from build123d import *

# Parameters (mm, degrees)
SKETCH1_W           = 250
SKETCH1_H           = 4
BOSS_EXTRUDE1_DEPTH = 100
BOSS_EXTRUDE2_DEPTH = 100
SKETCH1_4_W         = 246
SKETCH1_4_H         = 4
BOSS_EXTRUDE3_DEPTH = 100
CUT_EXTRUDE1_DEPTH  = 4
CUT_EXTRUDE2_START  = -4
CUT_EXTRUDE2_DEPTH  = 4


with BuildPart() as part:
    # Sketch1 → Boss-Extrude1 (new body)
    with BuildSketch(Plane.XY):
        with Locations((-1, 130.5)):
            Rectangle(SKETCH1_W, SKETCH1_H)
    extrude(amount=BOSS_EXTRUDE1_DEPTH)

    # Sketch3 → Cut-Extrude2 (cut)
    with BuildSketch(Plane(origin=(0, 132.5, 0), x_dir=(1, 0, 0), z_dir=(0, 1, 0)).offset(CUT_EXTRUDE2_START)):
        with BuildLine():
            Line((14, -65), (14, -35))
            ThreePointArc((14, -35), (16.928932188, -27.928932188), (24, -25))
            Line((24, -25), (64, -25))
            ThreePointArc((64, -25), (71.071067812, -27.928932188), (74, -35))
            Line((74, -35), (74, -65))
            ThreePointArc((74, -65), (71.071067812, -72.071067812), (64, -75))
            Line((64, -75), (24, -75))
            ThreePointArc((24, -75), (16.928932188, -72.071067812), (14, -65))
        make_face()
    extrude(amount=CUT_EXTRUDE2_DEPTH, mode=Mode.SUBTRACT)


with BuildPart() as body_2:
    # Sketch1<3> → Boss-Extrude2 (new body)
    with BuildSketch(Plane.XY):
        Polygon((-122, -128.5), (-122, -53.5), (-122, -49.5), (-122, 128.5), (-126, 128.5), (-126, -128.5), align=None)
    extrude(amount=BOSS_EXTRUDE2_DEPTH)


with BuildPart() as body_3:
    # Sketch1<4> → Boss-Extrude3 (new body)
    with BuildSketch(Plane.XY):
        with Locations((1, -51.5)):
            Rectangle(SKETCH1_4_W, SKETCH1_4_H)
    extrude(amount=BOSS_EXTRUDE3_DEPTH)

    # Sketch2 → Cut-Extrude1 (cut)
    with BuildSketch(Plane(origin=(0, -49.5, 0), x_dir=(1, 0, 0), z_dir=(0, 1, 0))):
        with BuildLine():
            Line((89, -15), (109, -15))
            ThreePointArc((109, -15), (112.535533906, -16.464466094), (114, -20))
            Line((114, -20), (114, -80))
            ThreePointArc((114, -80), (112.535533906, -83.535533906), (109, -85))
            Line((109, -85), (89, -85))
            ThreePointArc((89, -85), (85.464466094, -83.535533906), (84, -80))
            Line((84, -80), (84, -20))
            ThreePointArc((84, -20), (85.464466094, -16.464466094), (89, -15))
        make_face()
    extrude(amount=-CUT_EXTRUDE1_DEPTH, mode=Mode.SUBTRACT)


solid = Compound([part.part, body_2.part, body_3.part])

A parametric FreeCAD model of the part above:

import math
import FreeCAD as App
import Part
import Sketcher

doc = App.newDocument("Part")
params = doc.addObject("Spreadsheet::Sheet", "Params")
for row, (alias, value) in enumerate([
    ("sketch1_width", "250 mm"),
    ("sketch1_height", "4 mm"),
    ("pad1_length", "100 mm"),
    ("sketch2_radius", "10 mm"),
    ("sketch2_width", "40 mm"),
    ("sketch2_height", "30 mm"),
    ("pocket1_length", "4 mm"),
    ("sketch3_width", "4 mm"),
    ("sketch3_height", "257 mm"),
    ("pad2_length", "100 mm"),
    ("sketch4_width", "246 mm"),
    ("sketch4_height", "4 mm"),
    ("pad3_length", "100 mm"),
    ("sketch5_radius", "5 mm"),
    ("sketch5_width", "20 mm"),
    ("sketch5_height", "60 mm"),
    ("pocket2_length", "4 mm"),
], start=1):
    params.set(f"A{row}", alias)
    params.set(f"B{row}", "=" + value)
    params.setAlias(f"B{row}", alias)

body = doc.addObject("PartDesign::Body", "Body")

# Sketch on XY plane
sketch1 = body.newObject("Sketcher::SketchObject", "Sketch")
sketch1.AttachmentSupport = (doc.getObject("XY_Plane"), [""])
sketch1.MapMode = "FlatFace"
sketch1.addGeometry([
    Part.LineSegment(App.Vector(-126, 132.5, 0), App.Vector(-126, 128.5, 0)),
    Part.LineSegment(App.Vector(-126, 128.5, 0), App.Vector(124, 128.5, 0)),
    Part.LineSegment(App.Vector(124, 128.5, 0), App.Vector(124, 132.5, 0)),
    Part.LineSegment(App.Vector(124, 132.5, 0), App.Vector(-126, 132.5, 0)),
], False)
sketch1.addConstraint([
    Sketcher.Constraint("Coincident", 0, 2, 1, 1),
    Sketcher.Constraint("Coincident", 1, 2, 2, 1),
    Sketcher.Constraint("Coincident", 2, 2, 3, 1),
    Sketcher.Constraint("Coincident", 3, 2, 0, 1),
    Sketcher.Constraint("Vertical", 0),
    Sketcher.Constraint("Horizontal", 1),
    Sketcher.Constraint("Vertical", 2),
    Sketcher.Constraint("Horizontal", 3),
    Sketcher.Constraint("DistanceX", 1, 1, 1, 2, 250.0),
    Sketcher.Constraint("DistanceY", 0, 2, 0, 1, 4.0),
    Sketcher.Constraint("DistanceX", 0, 2, -1, 1, 126.0),
    Sketcher.Constraint("DistanceY", -1, 1, 0, 2, 128.5),
])
sketch1.setExpression("Constraints[8]", "Params.sketch1_width")
sketch1.setExpression("Constraints[9]", "Params.sketch1_height")
pad1 = body.newObject("PartDesign::Pad", "Pad")
pad1.Profile = sketch1
pad1.setExpression("Length", "Params.pad1_length")

# Sketch on XZ plane
sketch2 = body.newObject("Sketcher::SketchObject", "Sketch001")
sketch2.AttachmentSupport = (doc.getObject("XZ_Plane"), [""])
sketch2.MapMode = "FlatFace"
sketch2.AttachmentOffset = App.Placement(App.Vector(0, 0, -128.5), App.Rotation())
sketch2.addGeometry([
    Part.LineSegment(App.Vector(14, 35, 0), App.Vector(14, 65, 0)),  # 0
    Part.ArcOfCircle(Part.Circle(App.Vector(24, 65, 0), App.Vector(0, 0, 1), 10), math.radians(90), math.radians(180)),  # 1
    Part.LineSegment(App.Vector(24, 75, 0), App.Vector(64, 75, 0)),  # 2
    Part.ArcOfCircle(Part.Circle(App.Vector(64, 65, 0), App.Vector(0, 0, 1), 10), math.radians(0), math.radians(90)),  # 3
    Part.LineSegment(App.Vector(74, 65, 0), App.Vector(74, 35, 0)),  # 4
    Part.ArcOfCircle(Part.Circle(App.Vector(64, 35, 0), App.Vector(0, 0, 1), 10), math.radians(-90), math.radians(0)),  # 5
    Part.LineSegment(App.Vector(64, 25, 0), App.Vector(24, 25, 0)),  # 6
    Part.ArcOfCircle(Part.Circle(App.Vector(24, 35, 0), App.Vector(0, 0, 1), 10), math.radians(180), math.radians(270)),  # 7
], False)
sketch2.addConstraint([
    Sketcher.Constraint("Tangent", 0, 2, 1, 2),
    Sketcher.Constraint("Tangent", 1, 1, 2, 1),
    Sketcher.Constraint("Tangent", 2, 2, 3, 2),
    Sketcher.Constraint("Tangent", 3, 1, 4, 1),
    Sketcher.Constraint("Tangent", 4, 2, 5, 2),
    Sketcher.Constraint("Tangent", 5, 1, 6, 1),
    Sketcher.Constraint("Tangent", 6, 2, 7, 2),
    Sketcher.Constraint("Tangent", 7, 1, 0, 1),
    Sketcher.Constraint("Vertical", 0),
    Sketcher.Constraint("Horizontal", 2),
    Sketcher.Constraint("Vertical", 4),
    Sketcher.Constraint("Horizontal", 6),
    Sketcher.Constraint("Equal", 1, 3),
    Sketcher.Constraint("Equal", 3, 5),
    Sketcher.Constraint("Equal", 5, 7),
    Sketcher.Constraint("Radius", 1, 10.0),
    Sketcher.Constraint("DistanceX", 2, 1, 2, 2, 40.0),
    Sketcher.Constraint("DistanceY", 0, 1, 0, 2, 30.0),
    Sketcher.Constraint("DistanceX", -1, 1, 1, 3, 24.0),
    Sketcher.Constraint("DistanceY", -1, 1, 1, 3, 65.0),
])
sketch2.setExpression("Constraints[15]", "Params.sketch2_radius")
sketch2.setExpression("Constraints[16]", "Params.sketch2_width")
sketch2.setExpression("Constraints[17]", "Params.sketch2_height")
pocket1 = body.newObject("PartDesign::Pocket", "Pocket")
pocket1.Profile = sketch2
pocket1.setExpression("Length", "Params.pocket1_length")
body2 = doc.addObject("PartDesign::Body", "Body001")

# Sketch on XY plane
sketch3 = body2.newObject("Sketcher::SketchObject", "Sketch002")
sketch3.AttachmentSupport = (doc.getObject("XY_Plane001"), [""])
sketch3.MapMode = "FlatFace"
sketch3.addGeometry([
    Part.LineSegment(App.Vector(-122, -128.5, 0), App.Vector(-122, 128.5, 0)),
    Part.LineSegment(App.Vector(-122, 128.5, 0), App.Vector(-126, 128.5, 0)),
    Part.LineSegment(App.Vector(-126, 128.5, 0), App.Vector(-126, -128.5, 0)),
    Part.LineSegment(App.Vector(-126, -128.5, 0), App.Vector(-122, -128.5, 0)),
], False)
sketch3.addConstraint([
    Sketcher.Constraint("Coincident", 0, 2, 1, 1),
    Sketcher.Constraint("Coincident", 1, 2, 2, 1),
    Sketcher.Constraint("Coincident", 2, 2, 3, 1),
    Sketcher.Constraint("Coincident", 3, 2, 0, 1),
    Sketcher.Constraint("Vertical", 0),
    Sketcher.Constraint("Horizontal", 1),
    Sketcher.Constraint("Vertical", 2),
    Sketcher.Constraint("Horizontal", 3),
    Sketcher.Constraint("DistanceX", 1, 2, 1, 1, 4.0),
    Sketcher.Constraint("DistanceY", 0, 1, 0, 2, 257.0),
    Sketcher.Constraint("DistanceX", 0, 2, -1, 1, 122.0),
    Sketcher.Constraint("DistanceY", -1, 1, 0, 2, 128.5),
])
sketch3.setExpression("Constraints[8]", "Params.sketch3_width")
sketch3.setExpression("Constraints[9]", "Params.sketch3_height")
pad2 = body2.newObject("PartDesign::Pad", "Pad001")
pad2.Profile = sketch3
pad2.setExpression("Length", "Params.pad2_length")
body3 = doc.addObject("PartDesign::Body", "Body002")

# Sketch on XY plane
sketch4 = body3.newObject("Sketcher::SketchObject", "Sketch003")
sketch4.AttachmentSupport = (doc.getObject("XY_Plane002"), [""])
sketch4.MapMode = "FlatFace"
sketch4.addGeometry([
    Part.LineSegment(App.Vector(-122, -49.5, 0), App.Vector(-122, -53.5, 0)),
    Part.LineSegment(App.Vector(-122, -53.5, 0), App.Vector(124, -53.5, 0)),
    Part.LineSegment(App.Vector(124, -53.5, 0), App.Vector(124, -49.5, 0)),
    Part.LineSegment(App.Vector(124, -49.5, 0), App.Vector(-122, -49.5, 0)),
], False)
sketch4.addConstraint([
    Sketcher.Constraint("Coincident", 0, 2, 1, 1),
    Sketcher.Constraint("Coincident", 1, 2, 2, 1),
    Sketcher.Constraint("Coincident", 2, 2, 3, 1),
    Sketcher.Constraint("Coincident", 3, 2, 0, 1),
    Sketcher.Constraint("Vertical", 0),
    Sketcher.Constraint("Horizontal", 1),
    Sketcher.Constraint("Vertical", 2),
    Sketcher.Constraint("Horizontal", 3),
    Sketcher.Constraint("DistanceX", 1, 1, 1, 2, 246.0),
    Sketcher.Constraint("DistanceY", 0, 2, 0, 1, 4.0),
    Sketcher.Constraint("DistanceX", 0, 2, -1, 1, 122.0),
    Sketcher.Constraint("DistanceY", 0, 2, -1, 1, 53.5),
])
sketch4.setExpression("Constraints[8]", "Params.sketch4_width")
sketch4.setExpression("Constraints[9]", "Params.sketch4_height")
pad3 = body3.newObject("PartDesign::Pad", "Pad002")
pad3.Profile = sketch4
pad3.setExpression("Length", "Params.pad3_length")

# Sketch on XZ plane
sketch5 = body3.newObject("Sketcher::SketchObject", "Sketch004")
sketch5.AttachmentSupport = (doc.getObject("XZ_Plane002"), [""])
sketch5.MapMode = "FlatFace"
sketch5.AttachmentOffset = App.Placement(App.Vector(0, 0, 49.5), App.Rotation())
sketch5.addGeometry([
    Part.LineSegment(App.Vector(109, 15, 0), App.Vector(89, 15, 0)),  # 0
    Part.ArcOfCircle(Part.Circle(App.Vector(89, 20, 0), App.Vector(0, 0, 1), 5), math.radians(180), math.radians(270)),  # 1
    Part.LineSegment(App.Vector(84, 20, 0), App.Vector(84, 80, 0)),  # 2
    Part.ArcOfCircle(Part.Circle(App.Vector(89, 80, 0), App.Vector(0, 0, 1), 5), math.radians(90), math.radians(180)),  # 3
    Part.LineSegment(App.Vector(89, 85, 0), App.Vector(109, 85, 0)),  # 4
    Part.ArcOfCircle(Part.Circle(App.Vector(109, 80, 0), App.Vector(0, 0, 1), 5), math.radians(0), math.radians(90)),  # 5
    Part.LineSegment(App.Vector(114, 80, 0), App.Vector(114, 20, 0)),  # 6
    Part.ArcOfCircle(Part.Circle(App.Vector(109, 20, 0), App.Vector(0, 0, 1), 5), math.radians(-90), math.radians(0)),  # 7
], False)
sketch5.addConstraint([
    Sketcher.Constraint("Tangent", 0, 2, 1, 2),
    Sketcher.Constraint("Tangent", 1, 1, 2, 1),
    Sketcher.Constraint("Tangent", 2, 2, 3, 2),
    Sketcher.Constraint("Tangent", 3, 1, 4, 1),
    Sketcher.Constraint("Tangent", 4, 2, 5, 2),
    Sketcher.Constraint("Tangent", 5, 1, 6, 1),
    Sketcher.Constraint("Tangent", 6, 2, 7, 2),
    Sketcher.Constraint("Tangent", 7, 1, 0, 1),
    Sketcher.Constraint("Horizontal", 0),
    Sketcher.Constraint("Vertical", 2),
    Sketcher.Constraint("Horizontal", 4),
    Sketcher.Constraint("Vertical", 6),
    Sketcher.Constraint("Equal", 1, 3),
    Sketcher.Constraint("Equal", 3, 5),
    Sketcher.Constraint("Equal", 5, 7),
    Sketcher.Constraint("Radius", 1, 5.0),
    Sketcher.Constraint("DistanceX", 0, 2, 0, 1, 20.0),
    Sketcher.Constraint("DistanceY", 2, 1, 2, 2, 60.0),
    Sketcher.Constraint("DistanceX", -1, 1, 1, 3, 89.0),
    Sketcher.Constraint("DistanceY", -1, 1, 1, 3, 20.0),
])
sketch5.setExpression("Constraints[15]", "Params.sketch5_radius")
sketch5.setExpression("Constraints[16]", "Params.sketch5_width")
sketch5.setExpression("Constraints[17]", "Params.sketch5_height")
pocket2 = body3.newObject("PartDesign::Pocket", "Pocket001")
pocket2.Profile = sketch5
pocket2.setExpression("Length", "Params.pocket2_length")
pocket2.Reversed = True

doc.recompute()
